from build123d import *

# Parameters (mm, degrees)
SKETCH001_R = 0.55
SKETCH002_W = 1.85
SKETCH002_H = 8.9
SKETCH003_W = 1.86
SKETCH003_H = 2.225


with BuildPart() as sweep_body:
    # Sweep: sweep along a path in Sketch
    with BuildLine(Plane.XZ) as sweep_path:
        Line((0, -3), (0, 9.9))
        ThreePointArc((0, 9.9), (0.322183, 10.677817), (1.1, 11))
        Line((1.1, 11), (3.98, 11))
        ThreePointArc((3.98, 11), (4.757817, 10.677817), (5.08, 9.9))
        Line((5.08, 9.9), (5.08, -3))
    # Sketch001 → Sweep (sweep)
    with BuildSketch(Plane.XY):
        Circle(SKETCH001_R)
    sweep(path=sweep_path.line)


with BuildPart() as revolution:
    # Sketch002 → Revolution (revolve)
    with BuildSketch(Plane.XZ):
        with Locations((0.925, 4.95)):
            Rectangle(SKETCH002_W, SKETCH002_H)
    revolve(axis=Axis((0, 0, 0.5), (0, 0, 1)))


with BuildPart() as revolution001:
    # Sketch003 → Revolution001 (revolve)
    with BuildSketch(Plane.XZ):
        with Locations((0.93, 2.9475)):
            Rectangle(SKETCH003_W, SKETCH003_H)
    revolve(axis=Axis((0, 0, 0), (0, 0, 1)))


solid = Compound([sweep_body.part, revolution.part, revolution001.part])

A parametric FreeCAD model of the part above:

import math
import FreeCAD as App
import Part
import Sketcher

V = App.Vector
Q = App.Units.Quantity

doc = App.newDocument("Part")
params = doc.addObject("Spreadsheet::Sheet", "Params")
for row, (alias, value) in enumerate([
    ("sketch1_diameter", "1.1 mm"),
    ("sketch2_radius", "1.100002 mm"),
    ("sketch2_height", "12.9 mm"),
    ("sketch2_width", "2.88 mm"),
    ("sketch3_height", "8.9 mm"),
    ("sketch3_width", "1.85 mm"),
    ("revolution_angle", "360 deg"),
    ("sketch4_width", "1.86 mm"),
    ("revolution2_angle", "360 deg"),
], start=1):
    params.set(f"A{row}", alias)
    params.set(f"B{row}", "=" + value)
    params.setAlias(f"B{row}", alias)

body = doc.addObject("PartDesign::Body", "Body")

# Sketch on XY plane
sketch1 = body.newObject("Sketcher::SketchObject", "Sketch")
sketch1.AttachmentSupport = (doc.getObject("XY_Plane"), [""])
sketch1.MapMode = "FlatFace"
sketch1.addGeometry(Part.Circle(V(0, 0, 0), V(0, 0, 1), 0.55), False)
sketch1.addConstraint(Sketcher.Constraint("Coincident", 0, 3, -1, 1))
sketch1.addConstraint(Sketcher.Constraint("Diameter", 0, Q("1.1 mm")))
sketch1.setExpression("Constraints[1]", "Params.sketch1_diameter")

# Sketch on XZ plane
sketch2 = body.newObject("Sketcher::SketchObject", "Sketch001")
sketch2.AttachmentSupport = (doc.getObject("XZ_Plane"), [""])
sketch2.MapMode = "FlatFace"
sketch2.addGeometry(Part.LineSegment(V(0, -3, 0), V(0, 9.9, 0)), False)
sketch2.addGeometry(Part.ArcOfCircle(Part.Circle(V(1.100002, 9.899998, 0), V(0, 0, 1), 1.100002), math.radians(90.000082), math.radians(179.999918)), False)
sketch2.addGeometry(Part.LineSegment(V(1.1, 11, 0), V(3.98, 11, 0)), False)
sketch2.addGeometry(Part.ArcOfCircle(Part.Circle(V(3.979998, 9.899998, 0), V(0, 0, 1), 1.100002), math.radians(0.000082), math.radians(89.999918)), False)
sketch2.addGeometry(Part.LineSegment(V(5.08, 9.9, 0), V(5.08, -3, 0)), False)
sketch2.addConstraint(Sketcher.Constraint("Tangent", 0, 2, 1, 2))
sketch2.addConstraint(Sketcher.Constraint("Tangent", 1, 1, 2, 1))
sketch2.addConstraint(Sketcher.Constraint("Tangent", 2, 2, 3, 2))
sketch2.addConstraint(Sketcher.Constraint("Tangent", 3, 1, 4, 1))
sketch2.addConstraint(Sketcher.Constraint("Vertical", 0))
sketch2.addConstraint(Sketcher.Constraint("Horizontal", 2))
sketch2.addConstraint(Sketcher.Constraint("Vertical", 4))
sketch2.addConstraint(Sketcher.Constraint("Equal", 1, 3))
sketch2.addConstraint(Sketcher.Constraint("PointOnObject", 0, 1, -2))
sketch2.addConstraint(Sketcher.Constraint("Horizontal", 0, 1, 4, 2))
sketch2.addConstraint(Sketcher.Constraint("Radius", 1, Q("1.100002 mm")))
sketch2.addConstraint(Sketcher.Constraint("DistanceY", 0, 1, 0, 2, Q("12.9 mm")))
sketch2.addConstraint(Sketcher.Constraint("DistanceY", 0, 1, -1, 1, Q("3 mm")))
sketch2.addConstraint(Sketcher.Constraint("DistanceX", 2, 1, 2, 2, Q("2.88 mm")))
sketch2.setExpression("Constraints[10]", "Params.sketch2_radius")
sketch2.setExpression("Constraints[11]", "Params.sketch2_height")
sketch2.setExpression("Constraints[13]", "Params.sketch2_width")
doc.recompute()

additivepipe = body.newObject("PartDesign::AdditivePipe", "AdditivePipe")
additivepipe.Profile = sketch1
additivepipe.Spine = (sketch2, ["Edge1", "Edge2", "Edge3", "Edge4", "Edge5"])
body2 = doc.addObject("PartDesign::Body", "Body001")

# Sketch on XZ plane
sketch3 = body2.newObject("Sketcher::SketchObject", "Sketch002")
sketch3.AttachmentSupport = (doc.getObject("XZ_Plane001"), [""])
sketch3.MapMode = "FlatFace"
sketch3.addGeometry(Part.LineSegment(V(0, 9.4, 0), V(0, 0.5, 0)), False)
sketch3.addGeometry(Part.LineSegment(V(0, 0.5, 0), V(1.85, 0.5, 0)), False)
sketch3.addGeometry(Part.LineSegment(V(1.85, 0.5, 0), V(1.85, 9.4, 0)), False)
sketch3.addGeometry(Part.LineSegment(V(1.85, 9.4, 0), V(0, 9.4, 0)), False)
sketch3.addConstraint(Sketcher.Constraint("Coincident", 0, 2, 1, 1))
sketch3.addConstraint(Sketcher.Constraint("Coincident", 1, 2, 2, 1))
sketch3.addConstraint(Sketcher.Constraint("Coincident", 2, 2, 3, 1))
sketch3.addConstraint(Sketcher.Constraint("Coincident", 3, 2, 0, 1))
sketch3.addConstraint(Sketcher.Constraint("Vertical", 0))
sketch3.addConstraint(Sketcher.Constraint("Horizontal", 1))
sketch3.addConstraint(Sketcher.Constraint("Vertical", 2))
sketch3.addConstraint(Sketcher.Constraint("Horizontal", 3))
sketch3.addConstraint(Sketcher.Constraint("PointOnObject", 0, 2, -2))
sketch3.addConstraint(Sketcher.Constraint("DistanceY", 0, 2, 0, 1, Q("8.9 mm")))
sketch3.addConstraint(Sketcher.Constraint("DistanceX", 1, 1, 1, 2, Q("1.85 mm")))
sketch3.addConstraint(Sketcher.Constraint("DistanceY", -1, 1, 0, 2, Q("0.5 mm")))
sketch3.setExpression("Constraints[9]", "Params.sketch3_height")
sketch3.setExpression("Constraints[10]", "Params.sketch3_width")
revolution = body2.newObject("PartDesign::Revolution", "Revolution")
revolution.Profile = sketch3
revolution.ReferenceAxis = (sketch3, ["V_Axis"])
revolution.setExpression("Angle", "Params.revolution_angle")
body3 = doc.addObject("PartDesign::Body", "Body002")

# Sketch on XZ plane
sketch4 = body3.newObject("Sketcher::SketchObject", "Sketch003")
sketch4.AttachmentSupport = (doc.getObject("XZ_Plane002"), [""])
sketch4.MapMode = "FlatFace"
sketch4.addGeometry(Part.LineSegment(V(0, 4.06, 0), V(0, 1.835, 0)), False)
sketch4.addGeometry(Part.LineSegment(V(0, 1.835, 0), V(1.86, 1.835, 0)), False)
sketch4.addGeometry(Part.LineSegment(V(1.86, 1.835, 0), V(1.86, 4.06, 0)), False)
sketch4.addGeometry(Part.LineSegment(V(1.86, 4.06, 0), V(0, 4.06, 0)), False)
sketch4.addConstraint(Sketcher.Constraint("Coincident", 0, 2, 1, 1))
sketch4.addConstraint(Sketcher.Constraint("Coincident", 1, 2, 2, 1))
sketch4.addConstraint(Sketcher.Constraint("Coincident", 2, 2, 3, 1))
sketch4.addConstraint(Sketcher.Constraint("Coincident", 3, 2, 0, 1))
sketch4.addConstraint(Sketcher.Constraint("Vertical", 0))
sketch4.addConstraint(Sketcher.Constraint("Horizontal", 1))
sketch4.addConstraint(Sketcher.Constraint("Vertical", 2))
sketch4.addConstraint(Sketcher.Constraint("Horizontal", 3))
sketch4.addConstraint(Sketcher.Constraint("PointOnObject", 0, 2, -2))
sketch4.addConstraint(Sketcher.Constraint("DistanceX", 1, 1, 1, 2, Q("1.86 mm")))
sketch4.addConstraint(Sketcher.Constraint("DistanceY", 0, 2, 0, 1, Q("2.225 mm")))
sketch4.addConstraint(Sketcher.Constraint("DistanceY", -1, 1, 2, 2, Q("4.06 mm")))
sketch4.setExpression("Constraints[9]", "Params.sketch4_width")
revolution2 = body3.newObject("PartDesign::Revolution", "Revolution001")
revolution2.Profile = sketch4
revolution2.ReferenceAxis = (sketch4, ["V_Axis"])
revolution2.setExpression("Angle", "Params.revolution2_angle")

doc.recompute()
